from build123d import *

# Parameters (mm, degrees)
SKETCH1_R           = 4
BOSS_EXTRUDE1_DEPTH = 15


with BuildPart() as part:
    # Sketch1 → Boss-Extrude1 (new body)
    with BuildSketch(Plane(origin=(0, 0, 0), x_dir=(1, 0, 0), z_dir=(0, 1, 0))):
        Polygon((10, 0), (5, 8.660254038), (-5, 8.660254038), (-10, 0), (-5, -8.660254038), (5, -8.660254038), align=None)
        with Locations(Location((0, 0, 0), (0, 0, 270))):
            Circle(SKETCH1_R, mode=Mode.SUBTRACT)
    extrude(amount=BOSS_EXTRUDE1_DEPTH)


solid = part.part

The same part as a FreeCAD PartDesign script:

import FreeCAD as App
import Part
import Sketcher
Q = App.Units.Quantity


def add_polygon(sketch, points):
    """Adds a closed chain of lines whose ends are joined by coincident constraints."""
    first, n = sketch.GeometryCount, len(points)
    for a, b in zip(points, points[1:] + points[:1]):
        sketch.addGeometry(Part.LineSegment(App.Vector(*a, 0), App.Vector(*b, 0)), False)
    for i in range(n):
        sketch.addConstraint(Sketcher.Constraint("Coincident", first + i, 2, first + (i + 1) % n, 1))

doc = App.newDocument("Part")
params = doc.addObject("Spreadsheet::Sheet", "Params")
for row, (alias, value) in enumerate([
    ("sketch1_diameter", "8 mm"),
    ("sketch1_width", "10 mm"),
    ("sketch1_length", "10 mm"),
    ("pad1_length", "15 mm"),
], start=1):
    params.set(f"A{row}", alias)
    params.set(f"B{row}", "=" + value)
    params.setAlias(f"B{row}", alias)

body = doc.addObject("PartDesign::Body", "Body")

# Sketch on XZ plane
sketch1 = body.newObject("Sketcher::SketchObject", "Sketch")
sketch1.AttachmentSupport = (doc.getObject("XZ_Plane"), [""])
sketch1.MapMode = "FlatFace"
add_polygon(sketch1, [(10, 0), (5, -8.7), (-5, -8.7), (-10, 0), (-5, 8.7), (5, 8.7)])  # lines 0-5
sketch1.addGeometry(Part.Circle(App.Vector(0, 0, 0), App.Vector(0, 0, 1), 4), False)  # 6
sketch1.addConstraint(Sketcher.Constraint("Horizontal", 1))
sketch1.addConstraint(Sketcher.Constraint("Horizontal", 4))
sketch1.addConstraint(Sketcher.Constraint("Coincident", 6, 3, -1, 1))
sketch1.addConstraint(Sketcher.Constraint("Symmetric", 0, 2, 3, 2, -1, 1))
sketch1.addConstraint(Sketcher.Constraint("Symmetric", 2, 2, 5, 2, -1, 1))
sketch1.addConstraint(Sketcher.Constraint("PointOnObject", 2, 2, -1))
sketch1.addConstraint(Sketcher.Constraint("Parallel", 2, 5))
sketch1.addConstraint(Sketcher.Constraint("Vertical", 1, 2, 3, 2))
sketch1.addConstraint(Sketcher.Constraint("Diameter", 6, 8.0))
sketch1.addConstraint(Sketcher.Constraint("DistanceX", 1, 2, 1, 1, 10.0))
sketch1.addConstraint(Sketcher.Constraint("Angle", 0, Q("-120 deg")))
sketch1.addConstraint(Sketcher.Constraint("Distance", 0, 10.0))
sketch1.setExpression("Constraints[14]", "Params.sketch1_diameter")
sketch1.setExpression("Constraints[15]", "Params.sketch1_width")
sketch1.setExpression("Constraints[17]", "Params.sketch1_length")
pad1 = body.newObject("PartDesign::Pad", "Pad")
pad1.Profile = sketch1
pad1.setExpression("Length", "Params.pad1_length")
pad1.Reversed = True

doc.recompute()
